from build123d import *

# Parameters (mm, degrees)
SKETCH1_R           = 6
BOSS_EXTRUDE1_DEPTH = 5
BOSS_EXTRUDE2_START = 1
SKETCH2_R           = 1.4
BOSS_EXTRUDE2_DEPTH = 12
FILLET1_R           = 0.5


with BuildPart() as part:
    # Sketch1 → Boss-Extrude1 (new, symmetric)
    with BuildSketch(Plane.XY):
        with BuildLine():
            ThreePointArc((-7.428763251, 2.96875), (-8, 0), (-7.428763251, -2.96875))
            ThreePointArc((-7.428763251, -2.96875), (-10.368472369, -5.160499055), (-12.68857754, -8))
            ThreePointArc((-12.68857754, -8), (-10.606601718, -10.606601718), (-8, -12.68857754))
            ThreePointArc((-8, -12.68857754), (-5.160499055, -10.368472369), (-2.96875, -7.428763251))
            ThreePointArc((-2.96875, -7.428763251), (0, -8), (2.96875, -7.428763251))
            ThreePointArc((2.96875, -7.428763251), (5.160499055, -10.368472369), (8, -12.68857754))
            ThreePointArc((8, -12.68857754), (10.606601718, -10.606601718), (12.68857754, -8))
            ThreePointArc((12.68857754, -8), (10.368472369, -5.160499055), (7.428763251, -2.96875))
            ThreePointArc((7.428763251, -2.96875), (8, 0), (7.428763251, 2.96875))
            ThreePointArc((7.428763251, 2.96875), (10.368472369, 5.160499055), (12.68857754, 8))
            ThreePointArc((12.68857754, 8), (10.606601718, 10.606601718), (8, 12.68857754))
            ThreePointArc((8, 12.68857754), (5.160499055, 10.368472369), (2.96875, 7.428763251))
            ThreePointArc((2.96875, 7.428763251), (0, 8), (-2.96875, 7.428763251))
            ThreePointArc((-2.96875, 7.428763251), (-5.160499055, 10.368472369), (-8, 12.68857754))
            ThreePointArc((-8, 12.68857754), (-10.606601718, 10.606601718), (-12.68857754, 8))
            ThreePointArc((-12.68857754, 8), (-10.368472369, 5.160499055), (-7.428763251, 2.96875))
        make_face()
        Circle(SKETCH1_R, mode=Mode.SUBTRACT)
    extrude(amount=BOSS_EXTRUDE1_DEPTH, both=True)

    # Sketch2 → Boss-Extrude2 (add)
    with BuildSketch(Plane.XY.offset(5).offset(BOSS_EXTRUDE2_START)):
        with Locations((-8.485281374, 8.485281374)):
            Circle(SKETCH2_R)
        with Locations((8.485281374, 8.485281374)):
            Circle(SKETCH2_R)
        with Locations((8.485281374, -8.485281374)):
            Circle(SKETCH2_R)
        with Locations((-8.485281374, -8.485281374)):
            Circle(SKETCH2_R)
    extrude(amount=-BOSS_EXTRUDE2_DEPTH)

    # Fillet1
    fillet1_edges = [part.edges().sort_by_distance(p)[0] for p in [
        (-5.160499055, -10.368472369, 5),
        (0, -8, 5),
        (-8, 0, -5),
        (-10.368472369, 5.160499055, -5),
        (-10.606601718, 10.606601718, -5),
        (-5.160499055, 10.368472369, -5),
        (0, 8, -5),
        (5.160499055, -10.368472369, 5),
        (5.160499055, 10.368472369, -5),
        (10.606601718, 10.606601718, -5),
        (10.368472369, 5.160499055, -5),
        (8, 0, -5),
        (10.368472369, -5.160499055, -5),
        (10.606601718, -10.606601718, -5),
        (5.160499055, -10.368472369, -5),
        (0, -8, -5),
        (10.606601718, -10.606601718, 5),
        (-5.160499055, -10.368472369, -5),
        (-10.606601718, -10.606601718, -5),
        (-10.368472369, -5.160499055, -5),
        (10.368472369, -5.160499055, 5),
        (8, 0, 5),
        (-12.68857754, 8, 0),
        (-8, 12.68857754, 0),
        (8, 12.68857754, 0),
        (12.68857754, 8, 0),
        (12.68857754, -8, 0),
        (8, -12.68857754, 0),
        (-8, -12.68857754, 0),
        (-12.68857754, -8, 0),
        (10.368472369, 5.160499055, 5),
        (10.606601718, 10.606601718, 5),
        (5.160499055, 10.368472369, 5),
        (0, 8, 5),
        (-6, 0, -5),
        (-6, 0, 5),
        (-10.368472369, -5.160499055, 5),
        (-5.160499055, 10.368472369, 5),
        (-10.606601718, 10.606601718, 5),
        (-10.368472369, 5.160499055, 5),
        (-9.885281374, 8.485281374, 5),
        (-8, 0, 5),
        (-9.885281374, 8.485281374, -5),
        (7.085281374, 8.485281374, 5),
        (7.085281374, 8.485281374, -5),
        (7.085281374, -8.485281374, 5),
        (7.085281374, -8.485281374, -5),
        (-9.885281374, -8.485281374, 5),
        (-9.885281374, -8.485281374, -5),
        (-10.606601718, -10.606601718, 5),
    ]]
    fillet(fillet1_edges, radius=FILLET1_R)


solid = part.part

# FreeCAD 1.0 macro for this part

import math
import FreeCAD as App
import Part
import Sketcher

V = App.Vector
Q = App.Units.Quantity


def edges_at(feature, points):
    """Names of the edges that pass closest to the given points."""
    edges = feature.Shape.Edges
    near = lambda p: min(range(len(edges)), key=lambda i: edges[i].distToShape(Part.Vertex(*p))[0])
    return sorted({f"Edge{near(p) + 1}" for p in points})

doc = App.newDocument("Part")
body = doc.addObject("PartDesign::Body", "Body")

# Sketch on XY plane
sketch1 = body.newObject("Sketcher::SketchObject", "Sketch")
sketch1.AttachmentSupport = (doc.getObject("XY_Plane"), [""])
sketch1.MapMode = "FlatFace"
sketch1.addGeometry(Part.ArcOfCircle(Part.Circle(V(0, 0, 0), V(0, 0, 1), 8), math.radians(158), math.radians(202)), False)
sketch1.addGeometry(Part.ArcOfCircle(Part.Circle(V(0, -16, 0), V(0, 0, 1), 15), math.radians(120), math.radians(148)), False)
sketch1.addGeometry(Part.ArcOfCircle(Part.Circle(V(0, 0, 0), V(0, 0, 1), 15), math.radians(-148), math.radians(-122)), False)
sketch1.addGeometry(Part.ArcOfCircle(Part.Circle(V(-16, 0, 0), V(0, 0, 1), 15), math.radians(-58), math.radians(-30)), False)
sketch1.addGeometry(Part.ArcOfCircle(Part.Circle(V(0, 0, 0), V(0, 0, 1), 8), math.radians(-112), math.radians(-68)), False)
sketch1.addGeometry(Part.ArcOfCircle(Part.Circle(V(16, 0, 0), V(0, 0, 1), 15), math.radians(-150), math.radians(-122)), False)
sketch1.addGeometry(Part.ArcOfCircle(Part.Circle(V(0, 0, 0), V(0, 0, 1), 15), math.radians(-58), math.radians(-32)), False)
sketch1.addGeometry(Part.ArcOfCircle(Part.Circle(V(0, -16, 0), V(0, 0, 1), 15), math.radians(32), math.radians(60)), False)
sketch1.addGeometry(Part.ArcOfCircle(Part.Circle(V(0, 0, 0), V(0, 0, 1), 8), math.radians(-22), math.radians(22)), False)
sketch1.addGeometry(Part.ArcOfCircle(Part.Circle(V(0, 16, 0), V(0, 0, 1), 15), math.radians(-60), math.radians(-32)), False)
sketch1.addGeometry(Part.ArcOfCircle(Part.Circle(V(0, 0, 0), V(0, 0, 1), 15), math.radians(32), math.radians(58)), False)
sketch1.addGeometry(Part.ArcOfCircle(Part.Circle(V(16, 0, 0), V(0, 0, 1), 15), math.radians(122), math.radians(150)), False)
sketch1.addGeometry(Part.ArcOfCircle(Part.Circle(V(0, 0, 0), V(0, 0, 1), 8), math.radians(68), math.radians(112)), False)
sketch1.addGeometry(Part.ArcOfCircle(Part.Circle(V(-16, 0, 0), V(0, 0, 1), 15), math.radians(30), math.radians(58)), False)
sketch1.addGeometry(Part.ArcOfCircle(Part.Circle(V(0, 0, 0), V(0, 0, 1), 15), math.radians(122), math.radians(148)), False)
sketch1.addGeometry(Part.ArcOfCircle(Part.Circle(V(0, 16, 0), V(0, 0, 1), 15), math.radians(-148), math.radians(-120)), False)
sketch1.addGeometry(Part.Circle(V(0, 0, 0), V(0, 0, 1), 6), False)
sketch1.addConstraint(Sketcher.Constraint("Coincident", 0, 2, 1, 1))
sketch1.addConstraint(Sketcher.Constraint("Coincident", 1, 2, 2, 1))
sketch1.addConstraint(Sketcher.Constraint("Coincident", 2, 2, 3, 1))
sketch1.addConstraint(Sketcher.Constraint("Coincident", 3, 2, 4, 1))
sketch1.addConstraint(Sketcher.Constraint("Coincident", 4, 2, 5, 1))
sketch1.addConstraint(Sketcher.Constraint("Coincident", 5, 2, 6, 1))
sketch1.addConstraint(Sketcher.Constraint("Coincident", 6, 2, 7, 1))
sketch1.addConstraint(Sketcher.Constraint("Coincident", 7, 2, 8, 1))
sketch1.addConstraint(Sketcher.Constraint("Coincident", 8, 2, 9, 1))
sketch1.addConstraint(Sketcher.Constraint("Coincident", 9, 2, 10, 1))
sketch1.addConstraint(Sketcher.Constraint("Coincident", 10, 2, 11, 1))
sketch1.addConstraint(Sketcher.Constraint("Coincident", 11, 2, 12, 1))
sketch1.addConstraint(Sketcher.Constraint("Coincident", 12, 2, 13, 1))
sketch1.addConstraint(Sketcher.Constraint("Coincident", 13, 2, 14, 1))
sketch1.addConstraint(Sketcher.Constraint("Coincident", 14, 2, 15, 1))
sketch1.addConstraint(Sketcher.Constraint("Coincident", 15, 2, 0, 1))
sketch1.addConstraint(Sketcher.Constraint("Coincident", 0, 3, -1, 1))
sketch1.addConstraint(Sketcher.Constraint("Coincident", 2, 3, -1, 1))
sketch1.addConstraint(Sketcher.Constraint("Coincident", 4, 3, -1, 1))
sketch1.addConstraint(Sketcher.Constraint("Coincident", 6, 3, -1, 1))
sketch1.addConstraint(Sketcher.Constraint("Coincident", 8, 3, -1, 1))
sketch1.addConstraint(Sketcher.Constraint("Coincident", 10, 3, -1, 1))
sketch1.addConstraint(Sketcher.Constraint("Coincident", 12, 3, -1, 1))
sketch1.addConstraint(Sketcher.Constraint("Coincident", 14, 3, -1, 1))
sketch1.addConstraint(Sketcher.Constraint("Coincident", 16, 3, -1, 1))
sketch1.addConstraint(Sketcher.Constraint("Coincident", 7, 3, 1, 3))
sketch1.addConstraint(Sketcher.Constraint("Coincident", 11, 3, 5, 3))
sketch1.addConstraint(Sketcher.Constraint("Coincident", 13, 3, 3, 3))
sketch1.addConstraint(Sketcher.Constraint("Coincident", 15, 3, 9, 3))
sketch1.addConstraint(Sketcher.Constraint("Equal", 1, 2))
sketch1.addConstraint(Sketcher.Constraint("Equal", 2, 3))
sketch1.addConstraint(Sketcher.Constraint("Equal", 0, 4))
sketch1.addConstraint(Sketcher.Constraint("Equal", 3, 5))
sketch1.addConstraint(Sketcher.Constraint("Equal", 5, 6))
sketch1.addConstraint(Sketcher.Constraint("Equal", 6, 7))
sketch1.addConstraint(Sketcher.Constraint("Equal", 4, 8))
sketch1.addConstraint(Sketcher.Constraint("Equal", 7, 9))
sketch1.addConstraint(Sketcher.Constraint("Equal", 9, 10))
sketch1.addConstraint(Sketcher.Constraint("Equal", 10, 11))
sketch1.addConstraint(Sketcher.Constraint("Equal", 8, 12))
sketch1.addConstraint(Sketcher.Constraint("Equal", 11, 13))
sketch1.addConstraint(Sketcher.Constraint("Equal", 13, 14))
sketch1.addConstraint(Sketcher.Constraint("Equal", 14, 15))
sketch1.addConstraint(Sketcher.Constraint("Symmetric", 3, 3, 5, 3, -1, 1))
sketch1.addConstraint(Sketcher.Constraint("Symmetric", 1, 3, 9, 3, -1, 1))
sketch1.addConstraint(Sketcher.Constraint("PointOnObject", 1, 3, -2))
sketch1.addConstraint(Sketcher.Constraint("PointOnObject", 3, 3, -1))
sketch1.addConstraint(Sketcher.Constraint("Diameter", 16, Q("12 mm")))
sketch1.addConstraint(Sketcher.Constraint("Radius", 0, Q("8 mm")))
sketch1.addConstraint(Sketcher.Constraint("Radius", 1, Q("15 mm")))
sketch1.addConstraint(Sketcher.Constraint("DistanceY", 1, 3, -1, 1, Q("16 mm")))
sketch1.addConstraint(Sketcher.Constraint("DistanceX", 3, 3, -1, 1, Q("16 mm")))
pad1 = body.newObject("PartDesign::Pad", "Pad")
pad1.Profile = sketch1
pad1.Length = 10
pad1.Midplane = True

# Sketch on XY plane
sketch2 = body.newObject("Sketcher::SketchObject", "Sketch001")
sketch2.AttachmentSupport = (doc.getObject("XY_Plane"), [""])
sketch2.MapMode = "FlatFace"
sketch2.AttachmentOffset = App.Placement(V(0, 0, 6), App.Rotation())
sketch2.addGeometry(Part.Circle(V(-8.5, 8.5, 0), V(0, 0, 1), 1.4), False)
sketch2.addGeometry(Part.Circle(V(8.5, 8.5, 0), V(0, 0, 1), 1.4), False)
sketch2.addGeometry(Part.Circle(V(8.5, -8.5, 0), V(0, 0, 1), 1.4), False)
sketch2.addGeometry(Part.Circle(V(-8.5, -8.5, 0), V(0, 0, 1), 1.4), False)
sketch2.addConstraint(Sketcher.Constraint("Equal", 0, 1))
sketch2.addConstraint(Sketcher.Constraint("Equal", 1, 2))
sketch2.addConstraint(Sketcher.Constraint("Equal", 2, 3))
sketch2.addConstraint(Sketcher.Constraint("Symmetric", 0, 3, 2, 3, -1, 1))
sketch2.addConstraint(Sketcher.Constraint("Symmetric", 1, 3, 3, 3, -1, 1))
sketch2.addConstraint(Sketcher.Constraint("Symmetric", 0, 3, 1, 3, -2))
sketch2.addConstraint(Sketcher.Constraint("Diameter", 0, Q("2.8 mm")))
sketch2.addConstraint(Sketcher.Constraint("DistanceX", 0, 3, -1, 1, Q("8.485281 mm")))
sketch2.addConstraint(Sketcher.Constraint("DistanceY", -1, 1, 0, 3, Q("8.485281 mm")))
pad2 = body.newObject("PartDesign::Pad", "Pad001")
pad2.Profile = sketch2
pad2.Length = 12
pad2.Reversed = True
doc.recompute()

fillet = body.newObject("PartDesign::Fillet", "Fillet")
fillet.Base = (pad2, edges_at(pad2, [
    (-5.16, -10.368, 5),
    (0, -8, 5),
    (-8, 0, -5),
    (-10.368, 5.16, -5),
    (-10.607, 10.607, -5),
    (-5.16, 10.368, -5),
    (0, 8, -5),
    (5.16, -10.368, 5),
    (5.16, 10.368, -5),
    (10.607, 10.607, -5),
    (10.368, 5.16, -5),
    (8, 0, -5),
    (10.368, -5.16, -5),
    (10.607, -10.607, -5),
    (5.16, -10.368, -5),
    (0, -8, -5),
    (10.607, -10.607, 5),
    (-5.16, -10.368, -5),
    (-10.607, -10.607, -5),
    (-10.368, -5.16, -5),
    (10.368, -5.16, 5),
    (8, 0, 5),
    (-12.689, 8, 0),
    (-8, 12.689, 0),
    (8, 12.689, 0),
    (12.689, 8, 0),
    (12.689, -8, 0),
    (8, -12.689, 0),
    (-8, -12.689, 0),
    (-12.689, -8, 0),
    (10.368, 5.16, 5),
    (10.607, 10.607, 5),
    (5.16, 10.368, 5),
    (0, 8, 5),
    (-6, 0, -5),
    (-6, 0, 5),
    (-10.368, -5.16, 5),
    (-5.16, 10.368, 5),
    (-10.607, 10.607, 5),
    (-10.368, 5.16, 5),
    (-9.885, 8.485, 5),
    (-8, 0, 5),
    (-9.885, 8.485, -5),
    (7.085, 8.485, 5),
    (7.085, 8.485, -5),
    (7.085, -8.485, 5),
    (7.085, -8.485, -5),
    (-9.885, -8.485, 5),
    (-9.885, -8.485, -5),
    (-10.607, -10.607, 5),
]))
fillet.Radius = 0.5

doc.recompute()
